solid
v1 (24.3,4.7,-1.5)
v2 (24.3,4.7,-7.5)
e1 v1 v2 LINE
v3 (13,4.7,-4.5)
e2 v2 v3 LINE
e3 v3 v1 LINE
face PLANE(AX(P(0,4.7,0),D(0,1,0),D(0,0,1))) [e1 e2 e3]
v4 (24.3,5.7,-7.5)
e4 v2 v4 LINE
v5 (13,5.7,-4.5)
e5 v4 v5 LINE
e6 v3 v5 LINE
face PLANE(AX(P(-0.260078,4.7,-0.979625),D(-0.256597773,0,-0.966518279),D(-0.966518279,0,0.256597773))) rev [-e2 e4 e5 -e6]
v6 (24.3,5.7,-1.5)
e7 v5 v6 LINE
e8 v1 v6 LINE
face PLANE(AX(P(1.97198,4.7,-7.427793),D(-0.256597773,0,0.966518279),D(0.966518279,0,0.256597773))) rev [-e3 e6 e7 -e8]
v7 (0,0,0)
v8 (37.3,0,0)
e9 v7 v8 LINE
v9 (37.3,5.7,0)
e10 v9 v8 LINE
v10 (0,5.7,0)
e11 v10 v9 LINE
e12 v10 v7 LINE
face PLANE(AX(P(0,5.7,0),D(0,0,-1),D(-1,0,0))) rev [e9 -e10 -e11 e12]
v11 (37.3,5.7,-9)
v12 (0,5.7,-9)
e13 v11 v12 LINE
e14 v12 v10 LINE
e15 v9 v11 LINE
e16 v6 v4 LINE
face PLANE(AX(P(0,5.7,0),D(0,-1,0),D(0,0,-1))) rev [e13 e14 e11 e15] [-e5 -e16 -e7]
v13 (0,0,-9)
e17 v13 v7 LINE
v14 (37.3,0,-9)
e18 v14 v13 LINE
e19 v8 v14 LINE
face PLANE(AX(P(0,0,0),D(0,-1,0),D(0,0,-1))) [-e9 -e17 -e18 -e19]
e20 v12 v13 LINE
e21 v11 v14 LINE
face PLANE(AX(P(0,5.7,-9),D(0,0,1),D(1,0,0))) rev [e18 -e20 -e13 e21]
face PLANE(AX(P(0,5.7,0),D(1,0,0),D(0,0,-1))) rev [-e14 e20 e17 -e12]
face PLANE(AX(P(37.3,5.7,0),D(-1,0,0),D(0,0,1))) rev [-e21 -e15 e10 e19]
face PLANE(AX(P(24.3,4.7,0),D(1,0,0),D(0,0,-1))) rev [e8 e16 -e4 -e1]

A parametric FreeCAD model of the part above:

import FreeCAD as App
import Part
import Sketcher
from FreeCAD import Vector
Q = App.Units.Quantity


def add_polygon(sketch, points):
    """Adds a closed chain of lines whose ends are joined by coincident constraints."""
    first, n = sketch.GeometryCount, len(points)
    for a, b in zip(points, points[1:] + points[:1]):
        sketch.addGeometry(Part.LineSegment(App.Vector(*a, 0), App.Vector(*b, 0)), False)
    for i in range(n):
        sketch.addConstraint(Sketcher.Constraint("Coincident", first + i, 2, first + (i + 1) % n, 1))

doc = App.newDocument("Part")
body = doc.addObject("PartDesign::Body", "Body")

sketch1 = doc.addObject("Sketcher::SketchObject", "Sketch")
body.addObject(sketch1)
sketch1.AttachmentSupport = (doc.XZ_Plane, [""])
sketch1.MapMode = "FlatFace"
add_polygon(sketch1, [(0, -9), (0, 0), (37.3, 0), (37.3, -9)])
sketch1.addConstraint([
    Sketcher.Constraint("Vertical", 0),
    Sketcher.Constraint("Horizontal", 1),
    Sketcher.Constraint("Vertical", 2),
    Sketcher.Constraint("Horizontal", 3),
    Sketcher.Constraint("Coincident", 0, 2, -1, 1),
    Sketcher.Constraint("DistanceY", 0, 1, 0, 2, Q("9 mm")),
    Sketcher.Constraint("DistanceX", 1, 1, 1, 2, Q("37.3 mm")),
])
pad1 = doc.addObject("PartDesign::Pad", "Pad")
body.addObject(pad1)
pad1.Profile = sketch1
pad1.Length = 5.7
pad1.Reversed = True

sketch2 = doc.addObject("Sketcher::SketchObject", "Sketch001")
body.addObject(sketch2)
sketch2.AttachmentSupport = (doc.XZ_Plane, [""])
sketch2.MapMode = "FlatFace"
sketch2.AttachmentOffset = App.Placement(Vector(0, 0, -5.7), App.Rotation())
add_polygon(sketch2, [(24.3, -7.5), (13, -4.5), (24.3, -1.5)])
sketch2.addConstraint([
    Sketcher.Constraint("Vertical", 2),
    Sketcher.Constraint("Equal", 0, 1),
    Sketcher.Constraint("DistanceY", 2, 2, 2, 1, Q("6 mm")),
    Sketcher.Constraint("DistanceX", -1, 1, 0, 2, Q("13 mm")),
    Sketcher.Constraint("DistanceY", 0, 2, -1, 1, Q("4.5 mm")),
    Sketcher.Constraint("DistanceX", -1, 1, 1, 2, Q("24.3 mm")),
])
pocket1 = doc.addObject("PartDesign::Pocket", "Pocket")
body.addObject(pocket1)
pocket1.Profile = sketch2
pocket1.Length = 1
pocket1.Reversed = True

doc.recompute()
